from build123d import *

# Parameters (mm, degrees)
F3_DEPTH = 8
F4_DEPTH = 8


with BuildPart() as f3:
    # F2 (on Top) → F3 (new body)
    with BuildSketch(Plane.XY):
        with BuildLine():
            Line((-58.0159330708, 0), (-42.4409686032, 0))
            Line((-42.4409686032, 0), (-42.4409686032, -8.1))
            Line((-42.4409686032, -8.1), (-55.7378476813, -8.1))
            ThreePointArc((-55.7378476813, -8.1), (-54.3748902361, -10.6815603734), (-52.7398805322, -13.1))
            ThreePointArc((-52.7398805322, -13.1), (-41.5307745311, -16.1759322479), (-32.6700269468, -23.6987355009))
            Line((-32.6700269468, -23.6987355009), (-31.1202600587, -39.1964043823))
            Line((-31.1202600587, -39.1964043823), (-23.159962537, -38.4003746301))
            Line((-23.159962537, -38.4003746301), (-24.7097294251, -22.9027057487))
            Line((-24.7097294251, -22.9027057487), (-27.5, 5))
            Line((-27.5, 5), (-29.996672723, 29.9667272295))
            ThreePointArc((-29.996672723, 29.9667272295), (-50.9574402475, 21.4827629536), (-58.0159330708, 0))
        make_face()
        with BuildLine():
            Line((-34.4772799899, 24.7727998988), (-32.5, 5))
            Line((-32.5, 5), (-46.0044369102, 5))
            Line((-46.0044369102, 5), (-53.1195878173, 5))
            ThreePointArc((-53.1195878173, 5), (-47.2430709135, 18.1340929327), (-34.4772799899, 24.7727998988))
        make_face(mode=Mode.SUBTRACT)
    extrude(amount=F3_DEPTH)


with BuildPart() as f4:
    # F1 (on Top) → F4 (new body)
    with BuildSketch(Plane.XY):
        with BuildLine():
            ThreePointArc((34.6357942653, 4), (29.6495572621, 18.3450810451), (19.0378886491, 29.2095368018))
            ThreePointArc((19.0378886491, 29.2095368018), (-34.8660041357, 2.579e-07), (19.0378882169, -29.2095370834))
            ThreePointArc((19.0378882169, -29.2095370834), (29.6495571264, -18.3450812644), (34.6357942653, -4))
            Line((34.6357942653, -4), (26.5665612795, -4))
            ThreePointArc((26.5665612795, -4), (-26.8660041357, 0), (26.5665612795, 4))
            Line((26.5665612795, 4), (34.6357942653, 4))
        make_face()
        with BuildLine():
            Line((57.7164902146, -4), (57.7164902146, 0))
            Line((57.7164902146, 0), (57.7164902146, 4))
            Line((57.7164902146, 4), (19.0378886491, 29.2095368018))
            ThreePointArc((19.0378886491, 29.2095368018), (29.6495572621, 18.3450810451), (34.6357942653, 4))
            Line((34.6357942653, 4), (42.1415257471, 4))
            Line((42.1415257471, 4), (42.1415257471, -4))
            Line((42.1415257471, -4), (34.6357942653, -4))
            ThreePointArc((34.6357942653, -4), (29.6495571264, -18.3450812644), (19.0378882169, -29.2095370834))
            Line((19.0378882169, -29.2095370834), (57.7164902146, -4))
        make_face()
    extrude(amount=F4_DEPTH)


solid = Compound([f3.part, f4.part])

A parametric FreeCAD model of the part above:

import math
import FreeCAD as App
import Part
import Sketcher
from FreeCAD import Vector

doc = App.newDocument("Part")
body = doc.addObject("PartDesign::Body", "Body")

sketch1 = doc.addObject("Sketcher::SketchObject", "Sketch")
body.addObject(sketch1)
sketch1.AttachmentSupport = (doc.XY_Plane, [""])
sketch1.MapMode = "FlatFace"
sketch1.addGeometry([
    Part.LineSegment(Vector(-58.015933, 0, 0), Vector(-42.440969, 0, 0)),
    Part.LineSegment(Vector(-42.440969, 0, 0), Vector(-42.440969, -8.1, 0)),
    Part.LineSegment(Vector(-42.440969, -8.1, 0), Vector(-55.737848, -8.1, 0)),
    Part.ArcOfCircle(Part.Circle(Vector(-31.33335, 3.133996, 0), Vector(0, 0, 1), 26.866004), math.radians(-155.282212), math.radians(-142.824539)),
    Part.ArcOfCircle(Part.Circle(Vector(-54.076558, -39.932731, 0), Vector(0, 0, 1), 26.866004), math.radians(37.175461), math.radians(87.148158)),
    Part.LineSegment(Vector(-32.670027, -23.698736, 0), Vector(-31.12026, -39.196404, 0)),
    Part.LineSegment(Vector(-31.12026, -39.196404, 0), Vector(-23.159963, -38.400375, 0)),
    Part.LineSegment(Vector(-23.159963, -38.400375, 0), Vector(-24.709729, -22.902706, 0)),
    Part.LineSegment(Vector(-24.709729, -22.902706, 0), Vector(-29.996673, 29.966727, 0)),
    Part.ArcOfCircle(Part.Circle(Vector(-31.33335, 3.133996, 0), Vector(0, 0, 1), 26.866004), math.radians(87.148158), math.radians(186.698968)),
    Part.ArcOfCircle(Part.Circle(Vector(-31.33335, 3.133996, 0), Vector(0, 0, 1), 21.866004), math.radians(98.266734), math.radians(175.10453)),
    Part.LineSegment(Vector(-34.47728, 24.7728, 0), Vector(-32.5, 5, 0)),
    Part.LineSegment(Vector(-32.5, 5, 0), Vector(-53.119588, 5, 0)),
], False)
sketch1.addConstraint([
    Sketcher.Constraint("Coincident", 0, 2, 1, 1),
    Sketcher.Constraint("Coincident", 1, 2, 2, 1),
    Sketcher.Constraint("Coincident", 2, 2, 3, 1),
    Sketcher.Constraint("Coincident", 3, 2, 4, 2),
    Sketcher.Constraint("Coincident", 4, 1, 5, 1),
    Sketcher.Constraint("Coincident", 5, 2, 6, 1),
    Sketcher.Constraint("Coincident", 6, 2, 7, 1),
    Sketcher.Constraint("Coincident", 7, 2, 8, 1),
    Sketcher.Constraint("Coincident", 8, 2, 9, 1),
    Sketcher.Constraint("Coincident", 9, 2, 0, 1),
    Sketcher.Constraint("Coincident", 10, 1, 11, 1),
    Sketcher.Constraint("Coincident", 11, 2, 12, 1),
    Sketcher.Constraint("Coincident", 12, 2, 10, 2),
    Sketcher.Constraint("Horizontal", 0),
    Sketcher.Constraint("Vertical", 1),
    Sketcher.Constraint("Horizontal", 2),
    Sketcher.Constraint("Horizontal", 12),
    Sketcher.Constraint("Coincident", 9, 3, 3, 3),
    Sketcher.Constraint("Coincident", 10, 3, 3, 3),
    Sketcher.Constraint("Equal", 3, 4),
    Sketcher.Constraint("Equal", 4, 9),
    Sketcher.Constraint("PointOnObject", 0, 2, -1),
    Sketcher.Constraint("Perpendicular", 5, 6),
    Sketcher.Constraint("Perpendicular", 6, 7),
    Sketcher.Constraint("Parallel", 7, 8),
    Sketcher.Constraint("Parallel", 8, 11),
    Sketcher.Constraint("Equal", 5, 7),
    Sketcher.Constraint("Distance", 6, 8.0),
    Sketcher.Constraint("DistanceY", 1, 2, 1, 1, 8.1),
    Sketcher.Constraint("DistanceY", -1, 1, 11, 2, 5.0),
    Sketcher.Constraint("DistanceY", 3, 2, 2, 2, 5.0),
    Sketcher.Constraint("DistanceX", 11, 2, -1, 1, 32.5),
    Sketcher.Constraint("Radius", 3, 26.866004),
    Sketcher.Constraint("Radius", 10, 21.866004),
    Sketcher.Constraint("DistanceX", 2, 2, 2, 1, 13.296879),
    Sketcher.Constraint("DistanceY", -1, 1, 10, 1, 24.7728),
    Sketcher.Constraint("DistanceY", 5, 2, 7, 2, 16.293699),
    Sketcher.Constraint("DistanceY", 7, 2, 3, 3, 26.036702),
    Sketcher.Constraint("DistanceX", 0, 1, 0, 2, 15.574964),
    Sketcher.Constraint("DistanceX", 12, 2, 12, 1, 20.619588),
    Sketcher.Constraint("DistanceY", 4, 3, -1, 1, 39.932731),
])
pad1 = doc.addObject("PartDesign::Pad", "Pad")
body.addObject(pad1)
pad1.Profile = sketch1
pad1.Length = 8
body2 = doc.addObject("PartDesign::Body", "Body001")

sketch2 = doc.addObject("Sketcher::SketchObject", "Sketch001")
body2.addObject(sketch2)
sketch2.AttachmentSupport = (doc.getObject("XY_Plane001"), [""])
sketch2.MapMode = "FlatFace"
sketch2.addGeometry([
    Part.ArcOfCircle(Part.Circle(Vector(0, 0, 0), Vector(0, 0, 1), 34.866004), math.radians(56.904913), math.radians(303.095086)),
    Part.LineSegment(Vector(19.037888, -29.209537, 0), Vector(57.71649, -4, 0)),
    Part.LineSegment(Vector(57.71649, -4, 0), Vector(57.71649, 4, 0)),
    Part.LineSegment(Vector(57.71649, 4, 0), Vector(19.037889, 29.209537, 0)),
    Part.ArcOfCircle(Part.Circle(Vector(0, 0, 0), Vector(0, 0, 1), 26.866004), math.radians(8.562435), math.radians(351.437565)),
    Part.LineSegment(Vector(26.566561, 4, 0), Vector(42.141526, 4, 0)),
    Part.LineSegment(Vector(42.141526, 4, 0), Vector(42.141526, -4, 0)),
    Part.LineSegment(Vector(42.141526, -4, 0), Vector(26.566561, -4, 0)),
], False)
sketch2.addConstraint([
    Sketcher.Constraint("Tangent", 0, 2, 1, 1),
    Sketcher.Constraint("Coincident", 1, 2, 2, 1),
    Sketcher.Constraint("Coincident", 2, 2, 3, 1),
    Sketcher.Constraint("Tangent", 3, 2, 0, 1),
    Sketcher.Constraint("Coincident", 4, 1, 5, 1),
    Sketcher.Constraint("Coincident", 5, 2, 6, 1),
    Sketcher.Constraint("Coincident", 6, 2, 7, 1),
    Sketcher.Constraint("Coincident", 7, 2, 4, 2),
    Sketcher.Constraint("Vertical", 2),
    Sketcher.Constraint("Horizontal", 5),
    Sketcher.Constraint("Vertical", 6),
    Sketcher.Constraint("Horizontal", 7),
    Sketcher.Constraint("Coincident", 0, 3, -1, 1),
    Sketcher.Constraint("Coincident", 4, 3, -1, 1),
    Sketcher.Constraint("Horizontal", 2, 2, 4, 1),
    Sketcher.Constraint("Horizontal", 1, 2, 6, 2),
    Sketcher.Constraint("Vertical", 0, 2, 3, 2),
    Sketcher.Constraint("DistanceY", 2, 1, 2, 2, 8.0),
    Sketcher.Constraint("Radius", 0, 34.866004),
    Sketcher.Constraint("Radius", 4, 26.866004),
    Sketcher.Constraint("DistanceX", 0, 2, 1, 2, 38.678602),
    Sketcher.Constraint("DistanceX", 5, 1, 5, 2, 15.574964),
])
pad2 = doc.addObject("PartDesign::Pad", "Pad001")
body2.addObject(pad2)
pad2.Profile = sketch2
pad2.Length = 8

doc.recompute()
